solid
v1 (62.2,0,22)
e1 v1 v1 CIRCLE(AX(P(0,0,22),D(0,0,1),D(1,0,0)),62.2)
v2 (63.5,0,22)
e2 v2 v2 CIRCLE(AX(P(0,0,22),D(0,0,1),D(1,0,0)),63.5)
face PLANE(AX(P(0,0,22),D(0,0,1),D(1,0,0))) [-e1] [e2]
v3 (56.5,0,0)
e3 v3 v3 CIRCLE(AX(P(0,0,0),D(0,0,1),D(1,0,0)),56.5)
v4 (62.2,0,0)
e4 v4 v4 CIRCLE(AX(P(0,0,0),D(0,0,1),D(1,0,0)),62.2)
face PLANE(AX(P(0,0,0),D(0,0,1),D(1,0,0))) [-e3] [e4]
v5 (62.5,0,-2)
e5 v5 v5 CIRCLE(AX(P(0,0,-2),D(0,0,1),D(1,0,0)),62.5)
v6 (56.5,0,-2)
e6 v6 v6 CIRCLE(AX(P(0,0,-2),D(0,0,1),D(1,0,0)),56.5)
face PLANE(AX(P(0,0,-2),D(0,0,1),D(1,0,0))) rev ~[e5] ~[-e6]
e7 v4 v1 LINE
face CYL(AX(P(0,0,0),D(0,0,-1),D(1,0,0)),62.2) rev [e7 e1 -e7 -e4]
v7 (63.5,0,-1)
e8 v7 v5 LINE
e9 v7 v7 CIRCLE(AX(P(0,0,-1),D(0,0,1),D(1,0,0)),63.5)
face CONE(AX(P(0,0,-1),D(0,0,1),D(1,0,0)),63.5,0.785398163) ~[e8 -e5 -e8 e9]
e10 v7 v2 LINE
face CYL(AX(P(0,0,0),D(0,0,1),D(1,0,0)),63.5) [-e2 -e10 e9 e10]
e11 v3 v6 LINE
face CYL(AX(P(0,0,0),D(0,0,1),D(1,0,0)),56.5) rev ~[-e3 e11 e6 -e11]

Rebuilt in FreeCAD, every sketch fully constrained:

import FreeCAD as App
import Part
import Sketcher
Q = App.Units.Quantity


def edges_at(feature, points):
    """Names of the edges that pass closest to the given points."""
    edges = feature.Shape.Edges
    near = lambda p: min(range(len(edges)), key=lambda i: edges[i].distToShape(Part.Vertex(*p))[0])
    return sorted({f"Edge{near(p) + 1}" for p in points})

doc = App.newDocument("Part")
params = doc.addObject("Spreadsheet::Sheet", "Params")
for row, (alias, value) in enumerate([
    ("sketch1_diameter", "127 mm"),
    ("sketch1_diameter2", "124.4 mm"),
    ("pad1_length", "22 mm"),
    ("sketch2_diameter", "127 mm"),
    ("sketch2_diameter2", "113 mm"),
    ("pad2_length", "2 mm"),
    ("chamfer_size", "1 mm"),
], start=1):
    params.set(f"A{row}", alias)
    params.set(f"B{row}", "=" + value)
    params.setAlias(f"B{row}", alias)

body = doc.addObject("PartDesign::Body", "Body")

# Sketch on XY plane
sketch1 = body.newObject("Sketcher::SketchObject", "Sketch")
sketch1.AttachmentSupport = (doc.getObject("XY_Plane"), [""])
sketch1.MapMode = "FlatFace"
sketch1.addGeometry(Part.Circle(App.Vector(0, 0, 0), App.Vector(0, 0, 1), 64), False)
sketch1.addGeometry(Part.Circle(App.Vector(0, 0, 0), App.Vector(0, 0, 1), 62), False)
sketch1.addConstraint(Sketcher.Constraint("Coincident", 0, 3, -1, 1))
sketch1.addConstraint(Sketcher.Constraint("Coincident", 1, 3, -1, 1))
sketch1.addConstraint(Sketcher.Constraint("Diameter", 0, Q("127 mm")))
sketch1.addConstraint(Sketcher.Constraint("Diameter", 1, Q("124.4 mm")))
sketch1.setExpression("Constraints[2]", "Params.sketch1_diameter")
sketch1.setExpression("Constraints[3]", "Params.sketch1_diameter2")
pad1 = body.newObject("PartDesign::Pad", "Pad")
pad1.Profile = sketch1
pad1.setExpression("Length", "Params.pad1_length")

# Sketch on XY plane
sketch2 = body.newObject("Sketcher::SketchObject", "Sketch001")
sketch2.AttachmentSupport = (doc.getObject("XY_Plane"), [""])
sketch2.MapMode = "FlatFace"
sketch2.addGeometry(Part.Circle(App.Vector(0, 0, 0), App.Vector(0, 0, 1), 64), False)
sketch2.addGeometry(Part.Circle(App.Vector(0, 0, 0), App.Vector(0, 0, 1), 56), False)
sketch2.addConstraint(Sketcher.Constraint("Coincident", 0, 3, -1, 1))
sketch2.addConstraint(Sketcher.Constraint("Coincident", 1, 3, -1, 1))
sketch2.addConstraint(Sketcher.Constraint("Diameter", 0, Q("127 mm")))
sketch2.addConstraint(Sketcher.Constraint("Diameter", 1, Q("113 mm")))
sketch2.setExpression("Constraints[2]", "Params.sketch2_diameter")
sketch2.setExpression("Constraints[3]", "Params.sketch2_diameter2")
pad2 = body.newObject("PartDesign::Pad", "Pad001")
pad2.Profile = sketch2
pad2.setExpression("Length", "Params.pad2_length")
pad2.Reversed = True
doc.recompute()

chamfer = body.newObject("PartDesign::Chamfer", "Chamfer")
chamfer.Base = (pad2, edges_at(pad2, [(-63.5, 0, -2)]))
chamfer.setExpression("Size", "Params.chamfer_size")

doc.recompute()
